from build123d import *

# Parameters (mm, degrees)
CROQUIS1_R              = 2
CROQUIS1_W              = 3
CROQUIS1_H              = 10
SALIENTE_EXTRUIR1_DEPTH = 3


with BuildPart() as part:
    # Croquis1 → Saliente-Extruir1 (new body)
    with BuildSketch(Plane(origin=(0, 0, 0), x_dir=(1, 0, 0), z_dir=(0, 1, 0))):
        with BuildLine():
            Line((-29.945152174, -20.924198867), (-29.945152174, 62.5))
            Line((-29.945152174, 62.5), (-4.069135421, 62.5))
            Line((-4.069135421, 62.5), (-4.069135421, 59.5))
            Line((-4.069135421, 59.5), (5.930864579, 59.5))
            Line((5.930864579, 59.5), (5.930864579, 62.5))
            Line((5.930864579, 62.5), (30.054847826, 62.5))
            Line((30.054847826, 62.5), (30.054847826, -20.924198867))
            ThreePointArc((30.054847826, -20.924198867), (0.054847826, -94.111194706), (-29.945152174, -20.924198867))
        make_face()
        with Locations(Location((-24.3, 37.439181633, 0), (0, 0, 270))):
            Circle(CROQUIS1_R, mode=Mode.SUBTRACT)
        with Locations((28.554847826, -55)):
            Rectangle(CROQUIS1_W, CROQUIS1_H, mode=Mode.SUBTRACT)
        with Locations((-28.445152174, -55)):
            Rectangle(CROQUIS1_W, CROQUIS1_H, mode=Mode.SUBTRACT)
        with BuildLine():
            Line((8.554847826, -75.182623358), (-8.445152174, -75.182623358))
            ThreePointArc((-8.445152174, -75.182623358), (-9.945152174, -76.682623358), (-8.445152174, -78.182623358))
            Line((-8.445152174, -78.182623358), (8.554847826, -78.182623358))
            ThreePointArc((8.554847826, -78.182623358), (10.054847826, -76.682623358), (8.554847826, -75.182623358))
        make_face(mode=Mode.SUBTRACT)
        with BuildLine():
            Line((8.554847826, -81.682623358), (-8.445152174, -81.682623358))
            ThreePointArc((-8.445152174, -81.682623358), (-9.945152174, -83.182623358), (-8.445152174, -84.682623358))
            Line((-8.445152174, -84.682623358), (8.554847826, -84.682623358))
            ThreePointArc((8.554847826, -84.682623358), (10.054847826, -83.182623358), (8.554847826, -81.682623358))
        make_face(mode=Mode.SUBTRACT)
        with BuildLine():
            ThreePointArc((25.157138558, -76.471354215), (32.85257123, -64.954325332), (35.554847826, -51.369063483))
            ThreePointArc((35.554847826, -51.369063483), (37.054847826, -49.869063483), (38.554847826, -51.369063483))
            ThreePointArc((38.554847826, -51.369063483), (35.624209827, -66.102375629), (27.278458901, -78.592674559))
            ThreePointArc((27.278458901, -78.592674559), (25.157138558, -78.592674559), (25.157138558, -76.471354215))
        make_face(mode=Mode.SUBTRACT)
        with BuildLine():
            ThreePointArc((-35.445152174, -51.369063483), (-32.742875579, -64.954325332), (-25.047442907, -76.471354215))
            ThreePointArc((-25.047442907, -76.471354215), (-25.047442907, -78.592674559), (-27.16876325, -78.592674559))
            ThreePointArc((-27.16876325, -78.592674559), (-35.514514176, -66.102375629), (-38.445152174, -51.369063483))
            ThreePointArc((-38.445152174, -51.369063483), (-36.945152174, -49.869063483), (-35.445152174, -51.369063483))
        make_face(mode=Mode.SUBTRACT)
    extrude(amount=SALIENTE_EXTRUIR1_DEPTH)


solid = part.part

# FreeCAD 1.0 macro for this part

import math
import FreeCAD as App
import Part
import Sketcher

V = App.Vector

doc = App.newDocument("Part")
body = doc.addObject("PartDesign::Body", "Body")

# Sketch on XZ plane
sketch1 = body.newObject("Sketcher::SketchObject", "Sketch")
sketch1.AttachmentSupport = (doc.getObject("XZ_Plane"), [""])
sketch1.MapMode = "FlatFace"
sketch1.addGeometry([
    Part.LineSegment(V(-29.9, -62.5, 0), V(-29.9, 20.9, 0)),  # 0
    Part.ArcOfCircle(Part.Circle(V(0.1, 51.4, 0), V(0, 0, 1), 42.7), math.radians(-45), math.radians(225)),  # 1
    Part.LineSegment(V(30.1, 20.9, 0), V(30.1, -62.5, 0)),  # 2
    Part.LineSegment(V(30.1, -62.5, 0), V(5.9, -62.5, 0)),  # 3
    Part.LineSegment(V(5.9, -62.5, 0), V(5.9, -59.5, 0)),  # 4
    Part.LineSegment(V(5.9, -59.5, 0), V(-4.1, -59.5, 0)),  # 5
    Part.LineSegment(V(-4.1, -59.5, 0), V(-4.1, -62.5, 0)),  # 6
    Part.LineSegment(V(-4.1, -62.5, 0), V(-29.9, -62.5, 0)),  # 7
    Part.ArcOfCircle(Part.Circle(V(0.1, 51.4, 0), V(0, 0, 1), 35.5), math.radians(0), math.radians(45)),  # 8
    Part.ArcOfCircle(Part.Circle(V(37.1, 51.4, 0), V(0, 0, 1), 1.5), math.radians(180), math.radians(360)),  # 9
    Part.ArcOfCircle(Part.Circle(V(0.1, 51.4, 0), V(0, 0, 1), 38.5), math.radians(0), math.radians(45)),  # 10
    Part.ArcOfCircle(Part.Circle(V(26.2, 77.5, 0), V(0, 0, 1), 1.5), math.radians(45), math.radians(225)),  # 11
    Part.LineSegment(V(27.1, 60, 0), V(27.1, 50, 0)),  # 12
    Part.LineSegment(V(27.1, 50, 0), V(30.1, 50, 0)),  # 13
    Part.LineSegment(V(30.1, 50, 0), V(30.1, 60, 0)),  # 14
    Part.LineSegment(V(30.1, 60, 0), V(27.1, 60, 0)),  # 15
    Part.ArcOfCircle(Part.Circle(V(8.6, 83.2, 0), V(0, 0, 1), 1.5), math.radians(-90), math.radians(90)),  # 16
    Part.LineSegment(V(8.6, 84.7, 0), V(-8.4, 84.7, 0)),  # 17
    Part.ArcOfCircle(Part.Circle(V(-8.4, 83.2, 0), V(0, 0, 1), 1.5), math.radians(90), math.radians(270)),  # 18
    Part.LineSegment(V(-8.4, 81.7, 0), V(8.6, 81.7, 0)),  # 19
    Part.ArcOfCircle(Part.Circle(V(8.6, 76.7, 0), V(0, 0, 1), 1.5), math.radians(-90), math.radians(90)),  # 20
    Part.LineSegment(V(8.6, 78.2, 0), V(-8.4, 78.2, 0)),  # 21
    Part.ArcOfCircle(Part.Circle(V(-8.4, 76.7, 0), V(0, 0, 1), 1.5), math.radians(90), math.radians(270)),  # 22
    Part.LineSegment(V(-8.4, 75.2, 0), V(8.6, 75.2, 0)),  # 23
    Part.LineSegment(V(-29.9, 60, 0), V(-29.9, 50, 0)),  # 24
    Part.LineSegment(V(-29.9, 50, 0), V(-26.9, 50, 0)),  # 25
    Part.LineSegment(V(-26.9, 50, 0), V(-26.9, 60, 0)),  # 26
    Part.LineSegment(V(-26.9, 60, 0), V(-29.9, 60, 0)),  # 27
    Part.ArcOfCircle(Part.Circle(V(0.1, 51.4, 0), V(0, 0, 1), 35.5), math.radians(135), math.radians(180)),  # 28
    Part.ArcOfCircle(Part.Circle(V(-26.1, 77.5, 0), V(0, 0, 1), 1.5), math.radians(-45), math.radians(135)),  # 29
    Part.ArcOfCircle(Part.Circle(V(0.1, 51.4, 0), V(0, 0, 1), 38.5), math.radians(135), math.radians(180)),  # 30
    Part.ArcOfCircle(Part.Circle(V(-36.9, 51.4, 0), V(0, 0, 1), 1.5), math.radians(180), math.radians(360)),  # 31
    Part.Circle(V(-24.3, -37.4, 0), V(0, 0, 1), 2),  # 32
], False)
sketch1.addConstraint([
    Sketcher.Constraint("Coincident", 0, 2, 1, 2),
    Sketcher.Constraint("Coincident", 1, 1, 2, 1),
    Sketcher.Constraint("Coincident", 2, 2, 3, 1),
    Sketcher.Constraint("Coincident", 3, 2, 4, 1),
    Sketcher.Constraint("Coincident", 4, 2, 5, 1),
    Sketcher.Constraint("Coincident", 5, 2, 6, 1),
    Sketcher.Constraint("Coincident", 6, 2, 7, 1),
    Sketcher.Constraint("Coincident", 7, 2, 0, 1),
    Sketcher.Constraint("Tangent", 8, 1, 9, 1),
    Sketcher.Constraint("Tangent", 9, 2, 10, 1),
    Sketcher.Constraint("Tangent", 10, 2, 11, 1),
    Sketcher.Constraint("Tangent", 11, 2, 8, 2),
    Sketcher.Constraint("Coincident", 12, 2, 13, 1),
    Sketcher.Constraint("Coincident", 13, 2, 14, 1),
    Sketcher.Constraint("Coincident", 14, 2, 15, 1),
    Sketcher.Constraint("Coincident", 15, 2, 12, 1),
    Sketcher.Constraint("Tangent", 16, 2, 17, 1),
    Sketcher.Constraint("Tangent", 17, 2, 18, 1),
    Sketcher.Constraint("Tangent", 18, 2, 19, 1),
    Sketcher.Constraint("Tangent", 19, 2, 16, 1),
    Sketcher.Constraint("Tangent", 20, 2, 21, 1),
    Sketcher.Constraint("Tangent", 21, 2, 22, 1),
    Sketcher.Constraint("Tangent", 22, 2, 23, 1),
    Sketcher.Constraint("Tangent", 23, 2, 20, 1),
    Sketcher.Constraint("Coincident", 24, 2, 25, 1),
    Sketcher.Constraint("Coincident", 25, 2, 26, 1),
    Sketcher.Constraint("Coincident", 26, 2, 27, 1),
    Sketcher.Constraint("Coincident", 27, 2, 24, 1),
    Sketcher.Constraint("Tangent", 28, 1, 29, 1),
    Sketcher.Constraint("Tangent", 29, 2, 30, 1),
    Sketcher.Constraint("Tangent", 30, 2, 31, 1),
    Sketcher.Constraint("Tangent", 31, 2, 28, 2),
    Sketcher.Constraint("Vertical", 0),
    Sketcher.Constraint("Vertical", 2),
    Sketcher.Constraint("Horizontal", 3),
    Sketcher.Constraint("Vertical", 4),
    Sketcher.Constraint("Horizontal", 5),
    Sketcher.Constraint("Vertical", 6),
    Sketcher.Constraint("Horizontal", 7),
    Sketcher.Constraint("Vertical", 12),
    Sketcher.Constraint("Horizontal", 13),
    Sketcher.Constraint("Vertical", 14),
    Sketcher.Constraint("Horizontal", 15),
    Sketcher.Constraint("Horizontal", 17),
    Sketcher.Constraint("Horizontal", 19),
    Sketcher.Constraint("Horizontal", 21),
    Sketcher.Constraint("Horizontal", 23),
    Sketcher.Constraint("Vertical", 24),
    Sketcher.Constraint("Horizontal", 25),
    Sketcher.Constraint("Vertical", 26),
    Sketcher.Constraint("Horizontal", 27),
    Sketcher.Constraint("Coincident", 8, 3, 1, 3),
    Sketcher.Constraint("Coincident", 10, 3, 1, 3),
    Sketcher.Constraint("Coincident", 28, 3, 1, 3),
    Sketcher.Constraint("Coincident", 30, 3, 1, 3),
    Sketcher.Constraint("Equal", 11, 16),
    Sketcher.Constraint("Equal", 18, 20),
    Sketcher.Constraint("Equal", 8, 28),
    Sketcher.Constraint("Equal", 22, 29),
    Sketcher.Constraint("Horizontal", 8, 3, 9, 3),
    Sketcher.Constraint("Horizontal", 11, 3, 29, 3),
    Sketcher.Constraint("Horizontal", 30, 3, 31, 3),
    Sketcher.Constraint("Horizontal", 0, 2, 1, 1),
    Sketcher.Constraint("Horizontal", 3, 2, 6, 2),
    Sketcher.Constraint("Horizontal", 13, 2, 24, 2),
    Sketcher.Constraint("Horizontal", 15, 2, 26, 2),
    Sketcher.Constraint("Vertical", 16, 3, 20, 3),
    Sketcher.Constraint("Vertical", 18, 3, 22, 3),
    Sketcher.Constraint("Vertical", 2, 2, 13, 2),
    Sketcher.Constraint("Vertical", 7, 2, 24, 2),
    Sketcher.Constraint("Equal", 15, 25),
    Sketcher.Constraint("Equal", 27, 4),
    Sketcher.Constraint("Equal", 5, 12),
    Sketcher.Constraint("Diameter", 32, 4.0),
    Sketcher.Constraint("Radius", 8, 35.5),
    Sketcher.Constraint("Radius", 9, 1.5),
    Sketcher.Constraint("DistanceX", 5, 2, 5, 1, 10.0),
    Sketcher.Constraint("DistanceX", 13, 1, 13, 2, 3.0),
    Sketcher.Constraint("DistanceX", 17, 2, 17, 1, 17.0),
    Sketcher.Constraint("DistanceY", -1, 1, 12, 2, 50.0),
    Sketcher.Constraint("DistanceX", 31, 3, 0, 2, 7.0),
    Sketcher.Constraint("DistanceY", 20, 3, 16, 2, 8.0),
    Sketcher.Constraint("DistanceX", 32, 3, -1, 1, 24.3),
    Sketcher.Constraint("DistanceY", 2, 2, -1, 1, 62.5),
    Sketcher.Constraint("DistanceX", 1, 3, 16, 3, 8.5),
    Sketcher.Constraint("Radius", 1, 42.742131),
    Sketcher.Constraint("DistanceY", 0, 1, 0, 2, 83.424199),
    Sketcher.Constraint("DistanceX", -1, 1, 11, 3, 26.217799),
    Sketcher.Constraint("DistanceX", 3, 2, 3, 1, 24.123983),
    Sketcher.Constraint("DistanceY", 32, 3, -1, 1, 37.439182),
    Sketcher.Constraint("DistanceX", -1, 1, 11, 2, 25.157139),
    Sketcher.Constraint("DistanceY", 11, 3, 16, 3, 5.650609),
])
pad1 = body.newObject("PartDesign::Pad", "Pad")
pad1.Profile = sketch1
pad1.Length = 3
pad1.Reversed = True

doc.recompute()
